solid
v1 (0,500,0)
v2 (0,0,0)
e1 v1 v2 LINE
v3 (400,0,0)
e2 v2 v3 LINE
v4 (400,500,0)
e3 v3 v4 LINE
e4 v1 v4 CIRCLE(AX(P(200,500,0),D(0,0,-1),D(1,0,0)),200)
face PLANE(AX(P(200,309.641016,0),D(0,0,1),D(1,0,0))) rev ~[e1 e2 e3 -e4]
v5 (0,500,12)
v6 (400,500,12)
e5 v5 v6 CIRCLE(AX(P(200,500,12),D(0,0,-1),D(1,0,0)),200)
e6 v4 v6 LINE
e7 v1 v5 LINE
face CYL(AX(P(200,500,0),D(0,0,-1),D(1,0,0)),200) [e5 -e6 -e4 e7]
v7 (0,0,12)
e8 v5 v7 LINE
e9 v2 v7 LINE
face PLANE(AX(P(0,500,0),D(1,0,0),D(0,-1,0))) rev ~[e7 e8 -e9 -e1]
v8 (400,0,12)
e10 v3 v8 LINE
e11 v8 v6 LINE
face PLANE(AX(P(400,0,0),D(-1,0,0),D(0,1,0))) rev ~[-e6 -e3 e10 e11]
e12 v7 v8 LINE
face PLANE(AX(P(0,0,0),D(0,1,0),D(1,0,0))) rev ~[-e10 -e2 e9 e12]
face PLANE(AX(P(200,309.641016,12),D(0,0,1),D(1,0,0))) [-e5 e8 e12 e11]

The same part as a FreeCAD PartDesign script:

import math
import FreeCAD as App
import Part
import Sketcher

V = App.Vector
Q = App.Units.Quantity

doc = App.newDocument("Part")
body = doc.addObject("PartDesign::Body", "Body")

# Sketch on XY plane
sketch1 = body.newObject("Sketcher::SketchObject", "Sketch")
sketch1.AttachmentSupport = (doc.getObject("XY_Plane"), [""])
sketch1.MapMode = "FlatFace"
sketch1.addGeometry([
    Part.LineSegment(V(0, 500, 0), V(0, 0, 0)),
    Part.LineSegment(V(0, 0, 0), V(400, 0, 0)),
    Part.LineSegment(V(400, 0, 0), V(400, 500, 0)),
    Part.ArcOfCircle(Part.Circle(V(200, 500, 0), V(0, 0, 1), 200), math.radians(0), math.radians(180)),
], False)
sketch1.addConstraint([
    Sketcher.Constraint("Coincident", 0, 2, 1, 1),
    Sketcher.Constraint("Coincident", 1, 2, 2, 1),
    Sketcher.Constraint("Tangent", 2, 2, 3, 1),
    Sketcher.Constraint("Tangent", 3, 2, 0, 1),
    Sketcher.Constraint("Vertical", 0),
    Sketcher.Constraint("Horizontal", 1),
    Sketcher.Constraint("Vertical", 2),
    Sketcher.Constraint("Coincident", 0, 2, -1, 1),
    Sketcher.Constraint("Radius", 3, Q("200 mm")),
    Sketcher.Constraint("DistanceY", 0, 2, 0, 1, Q("500 mm")),
])
pad1 = body.newObject("PartDesign::Pad", "Pad")
pad1.Profile = sketch1
pad1.Length = 12

doc.recompute()
